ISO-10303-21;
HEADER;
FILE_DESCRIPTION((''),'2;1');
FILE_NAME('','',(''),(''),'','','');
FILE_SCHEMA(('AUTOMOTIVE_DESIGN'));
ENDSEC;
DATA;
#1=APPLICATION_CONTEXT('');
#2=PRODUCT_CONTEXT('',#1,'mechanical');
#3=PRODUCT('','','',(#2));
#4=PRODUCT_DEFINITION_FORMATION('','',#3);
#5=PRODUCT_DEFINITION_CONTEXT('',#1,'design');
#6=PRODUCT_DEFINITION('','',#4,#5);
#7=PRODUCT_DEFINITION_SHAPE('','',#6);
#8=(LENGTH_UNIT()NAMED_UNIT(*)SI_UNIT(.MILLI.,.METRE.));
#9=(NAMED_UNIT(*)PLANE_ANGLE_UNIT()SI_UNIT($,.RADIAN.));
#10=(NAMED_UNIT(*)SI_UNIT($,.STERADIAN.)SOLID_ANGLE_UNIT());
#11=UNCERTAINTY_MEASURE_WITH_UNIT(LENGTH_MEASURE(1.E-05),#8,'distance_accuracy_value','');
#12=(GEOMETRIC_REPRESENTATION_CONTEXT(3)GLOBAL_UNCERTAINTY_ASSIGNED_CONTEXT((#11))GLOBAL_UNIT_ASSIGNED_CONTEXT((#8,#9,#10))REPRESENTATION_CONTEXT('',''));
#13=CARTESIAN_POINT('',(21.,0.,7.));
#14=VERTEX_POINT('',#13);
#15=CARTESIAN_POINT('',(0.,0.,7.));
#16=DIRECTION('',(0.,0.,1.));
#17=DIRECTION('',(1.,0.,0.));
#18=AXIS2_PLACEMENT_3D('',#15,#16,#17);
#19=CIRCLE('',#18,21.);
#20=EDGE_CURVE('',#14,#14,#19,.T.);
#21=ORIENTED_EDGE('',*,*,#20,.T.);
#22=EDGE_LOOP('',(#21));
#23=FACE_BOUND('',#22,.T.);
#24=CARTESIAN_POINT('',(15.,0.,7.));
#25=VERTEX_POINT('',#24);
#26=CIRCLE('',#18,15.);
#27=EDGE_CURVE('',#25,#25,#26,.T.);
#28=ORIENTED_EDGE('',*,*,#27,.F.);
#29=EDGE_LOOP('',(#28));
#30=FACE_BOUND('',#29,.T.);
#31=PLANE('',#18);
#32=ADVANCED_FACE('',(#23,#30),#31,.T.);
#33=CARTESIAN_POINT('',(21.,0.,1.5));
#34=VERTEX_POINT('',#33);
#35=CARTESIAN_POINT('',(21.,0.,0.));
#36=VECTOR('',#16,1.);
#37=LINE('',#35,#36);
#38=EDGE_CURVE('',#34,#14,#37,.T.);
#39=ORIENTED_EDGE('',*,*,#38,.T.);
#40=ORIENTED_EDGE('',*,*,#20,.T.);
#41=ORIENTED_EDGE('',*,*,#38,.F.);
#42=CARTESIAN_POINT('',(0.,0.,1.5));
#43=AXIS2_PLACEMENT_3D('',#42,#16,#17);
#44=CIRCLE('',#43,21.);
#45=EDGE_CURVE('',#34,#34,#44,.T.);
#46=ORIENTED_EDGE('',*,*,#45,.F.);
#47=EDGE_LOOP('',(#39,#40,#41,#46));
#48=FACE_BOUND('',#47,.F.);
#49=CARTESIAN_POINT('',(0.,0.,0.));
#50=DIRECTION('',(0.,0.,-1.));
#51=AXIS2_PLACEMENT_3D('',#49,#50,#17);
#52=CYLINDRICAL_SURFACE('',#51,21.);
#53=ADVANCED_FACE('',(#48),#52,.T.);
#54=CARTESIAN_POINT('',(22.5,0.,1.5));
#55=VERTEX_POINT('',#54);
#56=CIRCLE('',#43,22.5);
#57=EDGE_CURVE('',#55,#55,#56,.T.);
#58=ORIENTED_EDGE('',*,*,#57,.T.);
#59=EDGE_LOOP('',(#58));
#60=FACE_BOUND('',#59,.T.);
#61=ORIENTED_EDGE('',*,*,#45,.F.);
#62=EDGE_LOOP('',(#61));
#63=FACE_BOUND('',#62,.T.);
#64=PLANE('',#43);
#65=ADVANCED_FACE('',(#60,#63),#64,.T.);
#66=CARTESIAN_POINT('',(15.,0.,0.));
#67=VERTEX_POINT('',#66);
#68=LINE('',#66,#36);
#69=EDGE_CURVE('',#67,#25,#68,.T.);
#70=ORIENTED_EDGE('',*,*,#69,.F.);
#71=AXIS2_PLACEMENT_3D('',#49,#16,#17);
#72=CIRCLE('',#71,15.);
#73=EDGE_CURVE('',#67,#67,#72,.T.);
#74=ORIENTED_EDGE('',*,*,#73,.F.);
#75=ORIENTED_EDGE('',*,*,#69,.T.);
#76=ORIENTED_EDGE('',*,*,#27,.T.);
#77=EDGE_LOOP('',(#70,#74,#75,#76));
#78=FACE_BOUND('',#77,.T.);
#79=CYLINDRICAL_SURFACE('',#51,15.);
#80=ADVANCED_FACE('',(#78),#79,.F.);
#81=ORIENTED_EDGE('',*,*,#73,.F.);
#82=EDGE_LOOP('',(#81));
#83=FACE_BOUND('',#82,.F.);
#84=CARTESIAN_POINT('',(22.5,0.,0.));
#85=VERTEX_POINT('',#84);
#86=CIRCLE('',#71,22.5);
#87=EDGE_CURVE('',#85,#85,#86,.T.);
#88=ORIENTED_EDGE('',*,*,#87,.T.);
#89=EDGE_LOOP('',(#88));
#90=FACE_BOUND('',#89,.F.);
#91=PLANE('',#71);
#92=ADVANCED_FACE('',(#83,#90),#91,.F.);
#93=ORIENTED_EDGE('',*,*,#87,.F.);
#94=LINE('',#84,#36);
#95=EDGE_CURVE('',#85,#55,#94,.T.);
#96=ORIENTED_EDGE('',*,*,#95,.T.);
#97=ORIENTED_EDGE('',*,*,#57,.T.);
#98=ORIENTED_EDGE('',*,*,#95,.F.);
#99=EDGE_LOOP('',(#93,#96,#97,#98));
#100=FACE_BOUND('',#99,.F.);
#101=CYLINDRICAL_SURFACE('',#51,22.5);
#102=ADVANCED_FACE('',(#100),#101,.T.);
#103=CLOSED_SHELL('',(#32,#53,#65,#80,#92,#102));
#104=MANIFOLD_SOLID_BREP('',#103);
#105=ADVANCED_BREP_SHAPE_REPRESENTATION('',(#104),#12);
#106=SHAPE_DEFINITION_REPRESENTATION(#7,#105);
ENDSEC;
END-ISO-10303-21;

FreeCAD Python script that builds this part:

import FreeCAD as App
import Part
import Sketcher

V = App.Vector
Q = App.Units.Quantity

doc = App.newDocument("Part")
params = doc.addObject("Spreadsheet::Sheet", "Params")
for row, (alias, value) in enumerate([
    ("sketch1_diameter", "42 mm"),
    ("sketch1_diameter2", "30 mm"),
    ("pad1_length", "7 mm"),
    ("sketch2_diameter", "45 mm"),
    ("sketch2_diameter2", "42 mm"),
    ("pad2_length", "1.5 mm"),
], start=1):
    params.set(f"A{row}", alias)
    params.set(f"B{row}", "=" + value)
    params.setAlias(f"B{row}", alias)

body = doc.addObject("PartDesign::Body", "Body")

# Sketch on XY plane
sketch1 = body.newObject("Sketcher::SketchObject", "Sketch")
sketch1.AttachmentSupport = (doc.getObject("XY_Plane"), [""])
sketch1.MapMode = "FlatFace"
sketch1.addGeometry(Part.Circle(V(0, 0, 0), V(0, 0, 1), 21), False)
sketch1.addGeometry(Part.Circle(V(0, 0, 0), V(0, 0, 1), 15), False)
sketch1.addConstraint(Sketcher.Constraint("Coincident", 0, 3, -1, 1))
sketch1.addConstraint(Sketcher.Constraint("Coincident", 1, 3, -1, 1))
sketch1.addConstraint(Sketcher.Constraint("Diameter", 0, Q("42 mm")))
sketch1.addConstraint(Sketcher.Constraint("Diameter", 1, Q("30 mm")))
sketch1.setExpression("Constraints[2]", "Params.sketch1_diameter")
sketch1.setExpression("Constraints[3]", "Params.sketch1_diameter2")
pad1 = body.newObject("PartDesign::Pad", "Pad")
pad1.Profile = sketch1
pad1.setExpression("Length", "Params.pad1_length")

# Sketch on XY plane
sketch2 = body.newObject("Sketcher::SketchObject", "Sketch001")
sketch2.AttachmentSupport = (doc.getObject("XY_Plane"), [""])
sketch2.MapMode = "FlatFace"
sketch2.addGeometry(Part.Circle(V(0, 0, 0), V(0, 0, 1), 22), False)
sketch2.addGeometry(Part.Circle(V(0, 0, 0), V(0, 0, 1), 21), False)
sketch2.addConstraint(Sketcher.Constraint("Coincident", 0, 3, -1, 1))
sketch2.addConstraint(Sketcher.Constraint("Coincident", 1, 3, -1, 1))
sketch2.addConstraint(Sketcher.Constraint("Diameter", 0, Q("45 mm")))
sketch2.addConstraint(Sketcher.Constraint("Diameter", 1, Q("42 mm")))
sketch2.setExpression("Constraints[2]", "Params.sketch2_diameter")
sketch2.setExpression("Constraints[3]", "Params.sketch2_diameter2")
pad2 = body.newObject("PartDesign::Pad", "Pad001")
pad2.Profile = sketch2
pad2.setExpression("Length", "Params.pad2_length")

doc.recompute()
